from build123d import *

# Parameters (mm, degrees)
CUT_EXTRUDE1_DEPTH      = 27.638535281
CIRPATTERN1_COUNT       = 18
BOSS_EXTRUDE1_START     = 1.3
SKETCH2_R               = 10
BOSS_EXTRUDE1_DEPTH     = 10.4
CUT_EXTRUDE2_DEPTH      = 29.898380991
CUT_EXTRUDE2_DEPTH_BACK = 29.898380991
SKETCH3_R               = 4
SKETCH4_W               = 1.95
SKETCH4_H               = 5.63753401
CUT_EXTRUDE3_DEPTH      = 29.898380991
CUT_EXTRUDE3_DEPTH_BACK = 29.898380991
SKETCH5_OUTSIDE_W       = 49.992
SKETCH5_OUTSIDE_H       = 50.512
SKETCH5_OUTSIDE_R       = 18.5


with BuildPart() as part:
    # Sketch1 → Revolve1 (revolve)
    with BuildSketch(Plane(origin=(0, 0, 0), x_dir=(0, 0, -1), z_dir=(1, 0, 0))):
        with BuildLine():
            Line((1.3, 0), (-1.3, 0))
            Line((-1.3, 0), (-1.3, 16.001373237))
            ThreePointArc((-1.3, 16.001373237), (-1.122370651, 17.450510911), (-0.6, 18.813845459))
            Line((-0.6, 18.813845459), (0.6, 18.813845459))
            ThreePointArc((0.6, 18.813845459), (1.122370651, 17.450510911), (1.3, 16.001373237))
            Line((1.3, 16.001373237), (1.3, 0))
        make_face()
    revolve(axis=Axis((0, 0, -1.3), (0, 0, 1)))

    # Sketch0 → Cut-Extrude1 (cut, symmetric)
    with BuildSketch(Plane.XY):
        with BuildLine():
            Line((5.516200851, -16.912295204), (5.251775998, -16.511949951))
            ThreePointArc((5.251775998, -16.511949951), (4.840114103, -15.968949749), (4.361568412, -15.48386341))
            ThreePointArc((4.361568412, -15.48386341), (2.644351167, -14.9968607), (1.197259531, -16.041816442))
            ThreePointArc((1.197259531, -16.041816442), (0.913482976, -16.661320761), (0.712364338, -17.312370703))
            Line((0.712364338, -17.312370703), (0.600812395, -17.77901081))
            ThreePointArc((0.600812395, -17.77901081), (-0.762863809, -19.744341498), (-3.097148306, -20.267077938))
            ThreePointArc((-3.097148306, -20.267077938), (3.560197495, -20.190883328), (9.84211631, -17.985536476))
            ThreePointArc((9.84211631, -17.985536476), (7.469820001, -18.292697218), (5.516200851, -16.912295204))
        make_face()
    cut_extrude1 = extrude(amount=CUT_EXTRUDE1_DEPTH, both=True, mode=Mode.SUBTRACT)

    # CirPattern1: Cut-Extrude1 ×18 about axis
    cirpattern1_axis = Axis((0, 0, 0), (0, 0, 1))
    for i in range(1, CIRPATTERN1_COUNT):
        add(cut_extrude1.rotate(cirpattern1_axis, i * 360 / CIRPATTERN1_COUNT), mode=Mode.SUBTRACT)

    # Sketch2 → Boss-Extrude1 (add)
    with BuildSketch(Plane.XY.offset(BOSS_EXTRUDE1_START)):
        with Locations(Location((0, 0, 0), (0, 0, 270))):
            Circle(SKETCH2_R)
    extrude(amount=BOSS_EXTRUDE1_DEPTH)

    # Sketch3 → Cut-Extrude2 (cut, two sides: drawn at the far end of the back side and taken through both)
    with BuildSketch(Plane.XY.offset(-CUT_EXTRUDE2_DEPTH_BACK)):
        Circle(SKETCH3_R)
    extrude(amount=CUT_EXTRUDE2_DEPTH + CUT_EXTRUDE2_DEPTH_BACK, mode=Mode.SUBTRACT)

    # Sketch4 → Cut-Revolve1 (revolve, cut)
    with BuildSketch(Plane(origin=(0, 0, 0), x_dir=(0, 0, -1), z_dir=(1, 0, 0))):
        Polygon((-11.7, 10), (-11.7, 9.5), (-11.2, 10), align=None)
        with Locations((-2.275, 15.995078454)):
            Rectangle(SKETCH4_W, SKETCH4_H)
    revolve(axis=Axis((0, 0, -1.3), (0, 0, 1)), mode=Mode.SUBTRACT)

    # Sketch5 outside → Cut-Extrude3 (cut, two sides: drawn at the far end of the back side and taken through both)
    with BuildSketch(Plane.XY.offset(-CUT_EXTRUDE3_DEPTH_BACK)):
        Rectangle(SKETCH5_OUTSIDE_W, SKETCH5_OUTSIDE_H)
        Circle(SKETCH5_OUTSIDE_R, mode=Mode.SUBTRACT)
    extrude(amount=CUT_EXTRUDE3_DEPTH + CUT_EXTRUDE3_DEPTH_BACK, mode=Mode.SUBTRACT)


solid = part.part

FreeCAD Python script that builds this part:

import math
import FreeCAD as App
import Part
import Sketcher
from FreeCAD import Vector


def add_polygon(sketch, points):
    """Adds a closed chain of lines whose ends are joined by coincident constraints."""
    first, n = sketch.GeometryCount, len(points)
    for a, b in zip(points, points[1:] + points[:1]):
        sketch.addGeometry(Part.LineSegment(App.Vector(*a, 0), App.Vector(*b, 0)), False)
    for i in range(n):
        sketch.addConstraint(Sketcher.Constraint("Coincident", first + i, 2, first + (i + 1) % n, 1))

doc = App.newDocument("Part")
params = doc.addObject("Spreadsheet::Sheet", "Params")
for row, (alias, value) in enumerate([
    ("sketch1_radius", "6 mm"),
    ("sketch1_height", "2.6 mm"),
    ("sketch1_height2", "1.2 mm"),
    ("revolution_angle", "360 deg"),
    ("pocket1_length", "55.277071 mm"),
    ("sketch3_diameter", "20 mm"),
    ("pad1_length", "10.4 mm"),
    ("sketch4_diameter", "8 mm"),
    ("sketch5_width", "0.5 mm"),
    ("sketch5_height", "1.95 mm"),
    ("groove_angle", "360 deg"),
    ("sketch6_diameter", "37 mm"),
], start=1):
    params.set(f"A{row}", alias)
    params.set(f"B{row}", "=" + value)
    params.setAlias(f"B{row}", alias)

body = doc.addObject("PartDesign::Body", "Body")

sketch1 = body.newObject("Sketcher::SketchObject", "Sketch")
sketch1.AttachmentSupport = (doc.getObject("YZ_Plane"), [""])
sketch1.MapMode = "FlatFace"
sketch1.addGeometry([
    Part.LineSegment(Vector(0, 1.3, 0), Vector(0, -1.3, 0)),
    Part.LineSegment(Vector(0, -1.3, 0), Vector(16, -1.3, 0)),
    Part.ArcOfCircle(Part.Circle(Vector(16, 4.7, 0), Vector(0, 0, 1), 6), math.radians(-90), math.radians(-62)),
    Part.LineSegment(Vector(18.8, -0.6, 0), Vector(18.8, 0.6, 0)),
    Part.ArcOfCircle(Part.Circle(Vector(16, -4.7, 0), Vector(0, 0, 1), 6), math.radians(62), math.radians(90)),
    Part.LineSegment(Vector(16, 1.3, 0), Vector(0, 1.3, 0)),
], False)
sketch1.addConstraint([
    Sketcher.Constraint("Coincident", 0, 2, 1, 1),
    Sketcher.Constraint("Tangent", 1, 2, 2, 1),
    Sketcher.Constraint("Coincident", 2, 2, 3, 1),
    Sketcher.Constraint("Coincident", 3, 2, 4, 1),
    Sketcher.Constraint("Tangent", 4, 2, 5, 1),
    Sketcher.Constraint("Coincident", 5, 2, 0, 1),
    Sketcher.Constraint("Vertical", 0),
    Sketcher.Constraint("Horizontal", 1),
    Sketcher.Constraint("Vertical", 3),
    Sketcher.Constraint("Horizontal", 5),
    Sketcher.Constraint("Equal", 2, 4),
    Sketcher.Constraint("Symmetric", 0, 2, 5, 2, -1, 1),
    Sketcher.Constraint("Vertical", 2, 3, 4, 3),
    Sketcher.Constraint("Radius", 2, 6.0),
    Sketcher.Constraint("DistanceY", 0, 2, 0, 1, 2.6),
    Sketcher.Constraint("DistanceY", 3, 1, 3, 2, 1.2),
    Sketcher.Constraint("DistanceX", 1, 1, 1, 2, 16.001373),
])
sketch1.setExpression("Constraints[13]", "Params.sketch1_radius")
sketch1.setExpression("Constraints[14]", "Params.sketch1_height")
sketch1.setExpression("Constraints[15]", "Params.sketch1_height2")
revolution = body.newObject("PartDesign::Revolution", "Revolution")
revolution.Profile = sketch1
revolution.ReferenceAxis = (sketch1, ["V_Axis"])
revolution.setExpression("Angle", "Params.revolution_angle")

sketch2 = body.newObject("Sketcher::SketchObject", "Sketch001")
sketch2.AttachmentSupport = (doc.getObject("XY_Plane"), [""])
sketch2.MapMode = "FlatFace"
sketch2.addGeometry([
    Part.LineSegment(Vector(5.52, -16.91, 0), Vector(5.25, -16.51, 0)),
    Part.ArcOfCircle(Part.Circle(Vector(0.87, -19.4, 0), Vector(0, 0, 1), 5.25), math.radians(33.44), math.radians(48.33)),
    Part.ArcOfCircle(Part.Circle(Vector(3, -17.01, 0), Vector(0, 0, 1), 2.05), math.radians(48), math.radians(152)),
    Part.ArcOfCircle(Part.Circle(Vector(5.82, -18.53, 0), Vector(0, 0, 1), 5.25), math.radians(151.67), math.radians(166.56)),
    Part.LineSegment(Vector(0.71, -17.31, 0), Vector(0.6, -17.78, 0)),
    Part.ArcOfCircle(Part.Circle(Vector(-2.6, -17.01, 0), Vector(0, 0, 1), 3.29), math.radians(-99), math.radians(-13)),
    Part.ArcOfCircle(Part.Circle(Vector(0, 0, 0), Vector(0, 0, 1), 20.5), math.radians(-99), math.radians(-61)),
    Part.ArcOfCircle(Part.Circle(Vector(8.26, -15.1, 0), Vector(0, 0, 1), 3.29), math.radians(-147), math.radians(-61)),
], False)
sketch2.addConstraint([
    Sketcher.Constraint("Tangent", 0, 2, 1, 1),
    Sketcher.Constraint("Tangent", 1, 2, 2, 1),
    Sketcher.Constraint("Tangent", 2, 2, 3, 1),
    Sketcher.Constraint("Tangent", 3, 2, 4, 1),
    Sketcher.Constraint("Tangent", 4, 2, 5, 2),
    Sketcher.Constraint("Tangent", 5, 1, 6, 1),
    Sketcher.Constraint("Tangent", 6, 2, 7, 2),
    Sketcher.Constraint("Tangent", 7, 1, 0, 1),
    Sketcher.Constraint("Coincident", 6, 3, -1, 1),
    Sketcher.Constraint("Equal", 1, 3),
    Sketcher.Constraint("Equal", 5, 7),
    Sketcher.Constraint("Horizontal", 2, 3, 5, 3),
    Sketcher.Constraint("Equal", 0, 4),
    Sketcher.Constraint("DistanceX", -1, 1, 2, 3, 3.0),
    Sketcher.Constraint("Radius", 5, 3.291),
    Sketcher.Constraint("DistanceX", 5, 3, -1, 1, 2.6),
    Sketcher.Constraint("Radius", 1, 5.2481),
    Sketcher.Constraint("Radius", 2, 2.0481),
    Sketcher.Constraint("Radius", 6, 20.50236),
    Sketcher.Constraint("DistanceX", -1, 1, 7, 1, 5.516201),
    Sketcher.Constraint("DistanceX", 5, 1, 1, 3, 3.969802),
])
pocket1 = body.newObject("PartDesign::Pocket", "Pocket")
pocket1.Profile = sketch2
pocket1.setExpression("Length", "Params.pocket1_length")
pocket1.Midplane = True
doc.recompute()

polarpattern = body.newObject("PartDesign::PolarPattern", "PolarPattern")
polarpattern.Originals = [pocket1]
polarpattern.Axis = (doc.getObject("Z_Axis"), [""])
polarpattern.Angle = 360
polarpattern.Occurrences = 18
body.Tip = polarpattern

sketch3 = body.newObject("Sketcher::SketchObject", "Sketch002")
sketch3.AttachmentSupport = (doc.getObject("XY_Plane"), [""])
sketch3.MapMode = "FlatFace"
sketch3.AttachmentOffset = App.Placement(Vector(0, 0, 1.3), App.Rotation())
sketch3.addGeometry(Part.Circle(Vector(0, 0, 0), Vector(0, 0, 1), 10), False)
sketch3.addConstraint([
    Sketcher.Constraint("Coincident", 0, 3, -1, 1),
    Sketcher.Constraint("Diameter", 0, 20.0),
])
sketch3.setExpression("Constraints[1]", "Params.sketch3_diameter")
pad1 = body.newObject("PartDesign::Pad", "Pad")
pad1.Profile = sketch3
pad1.setExpression("Length", "Params.pad1_length")

sketch4 = body.newObject("Sketcher::SketchObject", "Sketch003")
sketch4.AttachmentSupport = (doc.getObject("XY_Plane"), [""])
sketch4.MapMode = "FlatFace"
sketch4.addGeometry(Part.Circle(Vector(0, 0, 0), Vector(0, 0, 1), 4), False)
sketch4.addConstraint([
    Sketcher.Constraint("Coincident", 0, 3, -1, 1),
    Sketcher.Constraint("Diameter", 0, 8.0),
])
sketch4.setExpression("Constraints[1]", "Params.sketch4_diameter")
pocket2 = body.newObject("PartDesign::Pocket", "Pocket001")
pocket2.Profile = sketch4
pocket2.Type = "ThroughAll"
pocket2.Midplane = True

sketch5 = body.newObject("Sketcher::SketchObject", "Sketch004")
sketch5.AttachmentSupport = (doc.getObject("YZ_Plane"), [""])
sketch5.MapMode = "FlatFace"
add_polygon(sketch5, [(10, 11.7), (9.5, 11.7), (10, 11.2)])
add_polygon(sketch5, [(18.8, 3.2), (13.2, 3.2), (13.2, 1.3), (18.8, 1.3)])
sketch5.addConstraint([
    Sketcher.Constraint("Horizontal", 0),
    Sketcher.Constraint("Vertical", 2),
    Sketcher.Constraint("Horizontal", 3),
    Sketcher.Constraint("Vertical", 4),
    Sketcher.Constraint("Horizontal", 5),
    Sketcher.Constraint("Vertical", 6),
    Sketcher.Constraint("Equal", 0, 2),
    Sketcher.Constraint("DistanceX", 0, 2, 0, 1, 0.5),
    Sketcher.Constraint("DistanceX", -1, 1, 1, 2, 10.0),
    Sketcher.Constraint("DistanceY", 4, 2, 4, 1, 1.95),
    Sketcher.Constraint("DistanceY", -1, 1, 0, 2, 11.7),
    Sketcher.Constraint("DistanceY", -1, 1, 4, 2, 1.3),
    Sketcher.Constraint("DistanceX", 3, 2, 3, 1, 5.637534),
    Sketcher.Constraint("DistanceX", -1, 1, 3, 2, 13.176311),
])
sketch5.setExpression("Constraints[14]", "Params.sketch5_width")
sketch5.setExpression("Constraints[16]", "Params.sketch5_height")
groove = body.newObject("PartDesign::Groove", "Groove")
groove.Profile = sketch5
groove.ReferenceAxis = (sketch5, ["V_Axis"])
groove.setExpression("Angle", "Params.groove_angle")

sketch6 = body.newObject("Sketcher::SketchObject", "Sketch005")
sketch6.AttachmentSupport = (doc.getObject("XY_Plane"), [""])
sketch6.MapMode = "FlatFace"
add_polygon(sketch6, [(-25, 25), (-25, -25), (25, -25), (25, 25)])
sketch6.addGeometry(Part.Circle(Vector(0, 0, 0), Vector(0, 0, 1), 18), False)
sketch6.addConstraint([
    Sketcher.Constraint("Vertical", 0),
    Sketcher.Constraint("Horizontal", 1),
    Sketcher.Constraint("Vertical", 2),
    Sketcher.Constraint("Horizontal", 3),
    Sketcher.Constraint("Coincident", 4, 3, -1, 1),
    Sketcher.Constraint("Symmetric", 0, 2, 2, 2, -1, 1),
    Sketcher.Constraint("Diameter", 4, 37.0),
    Sketcher.Constraint("DistanceX", 1, 1, 1, 2, 49.992),
    Sketcher.Constraint("DistanceY", 0, 2, 0, 1, 50.512),
])
sketch6.setExpression("Constraints[10]", "Params.sketch6_diameter")
pocket3 = body.newObject("PartDesign::Pocket", "Pocket002")
pocket3.Profile = sketch6
pocket3.Type = "ThroughAll"
pocket3.Midplane = True

doc.recompute()
